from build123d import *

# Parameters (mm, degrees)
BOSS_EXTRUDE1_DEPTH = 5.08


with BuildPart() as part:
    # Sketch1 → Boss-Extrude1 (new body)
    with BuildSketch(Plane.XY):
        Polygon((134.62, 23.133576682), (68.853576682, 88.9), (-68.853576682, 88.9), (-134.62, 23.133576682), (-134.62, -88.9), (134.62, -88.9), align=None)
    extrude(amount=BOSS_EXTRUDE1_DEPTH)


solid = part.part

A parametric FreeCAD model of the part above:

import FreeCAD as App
import Part
import Sketcher

V = App.Vector
Q = App.Units.Quantity


def add_polygon(sketch, points):
    """Adds a closed chain of lines whose ends are joined by coincident constraints."""
    first, n = sketch.GeometryCount, len(points)
    for a, b in zip(points, points[1:] + points[:1]):
        sketch.addGeometry(Part.LineSegment(App.Vector(*a, 0), App.Vector(*b, 0)), False)
    for i in range(n):
        sketch.addConstraint(Sketcher.Constraint("Coincident", first + i, 2, first + (i + 1) % n, 1))

doc = App.newDocument("Part")
body = doc.addObject("PartDesign::Body", "Body")

sketch1 = body.newObject("Sketcher::SketchObject", "Sketch")
sketch1.AttachmentSupport = (doc.getObject("XY_Plane"), [""])
sketch1.MapMode = "FlatFace"
add_polygon(sketch1, [(135, 23), (69, 89), (-69, 89), (-135, 23), (-135, -89), (135, -89)])
sketch1.addConstraint([
    Sketcher.Constraint("Horizontal", 1),
    Sketcher.Constraint("Vertical", 3),
    Sketcher.Constraint("Horizontal", 4),
    Sketcher.Constraint("Vertical", 5),
    Sketcher.Constraint("Symmetric", 2, 2, 5, 2, -2),
    Sketcher.Constraint("Perpendicular", 0, 2),
    Sketcher.Constraint("Equal", 0, 2),
    Sketcher.Constraint("DistanceX", 4, 1, 4, 2, Q("10.6 in")),
    Sketcher.Constraint("DistanceY", 3, 2, 1, 2, Q("7 in")),
    Sketcher.Constraint("DistanceY", -1, 1, 0, 2, Q("3.5 in")),
    Sketcher.Constraint("DistanceX", 1, 2, 1, 1, 137.707153),
])
pad1 = body.newObject("PartDesign::Pad", "Pad")
pad1.Profile = sketch1
pad1.Length = Q("0.2 in")

doc.recompute()
